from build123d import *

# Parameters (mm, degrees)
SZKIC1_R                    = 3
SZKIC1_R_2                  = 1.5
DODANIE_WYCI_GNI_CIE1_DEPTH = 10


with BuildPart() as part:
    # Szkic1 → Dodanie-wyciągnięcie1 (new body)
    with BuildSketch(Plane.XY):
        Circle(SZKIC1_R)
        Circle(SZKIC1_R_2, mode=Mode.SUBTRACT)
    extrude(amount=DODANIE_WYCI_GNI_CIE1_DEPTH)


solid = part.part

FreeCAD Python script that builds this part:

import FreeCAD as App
import Part
import Sketcher

V = App.Vector

doc = App.newDocument("Part")
body = doc.addObject("PartDesign::Body", "Body")

# Sketch on XY plane
sketch1 = doc.addObject("Sketcher::SketchObject", "Sketch")
body.addObject(sketch1)
sketch1.AttachmentSupport = (doc.XY_Plane, [""])
sketch1.MapMode = "FlatFace"
sketch1.addGeometry([
    Part.Circle(V(0, 0, 0), V(0, 0, 1), 3),
    Part.Circle(V(0, 0, 0), V(0, 0, 1), 1.5),
], False)
sketch1.addConstraint([
    Sketcher.Constraint("Coincident", 0, 3, -1, 1),
    Sketcher.Constraint("Coincident", 1, 3, -1, 1),
    Sketcher.Constraint("Diameter", 0, 6.0),
    Sketcher.Constraint("Diameter", 1, 3.0),
])
pad1 = doc.addObject("PartDesign::Pad", "Pad")
body.addObject(pad1)
pad1.Profile = sketch1
pad1.Length = 10

doc.recompute()
